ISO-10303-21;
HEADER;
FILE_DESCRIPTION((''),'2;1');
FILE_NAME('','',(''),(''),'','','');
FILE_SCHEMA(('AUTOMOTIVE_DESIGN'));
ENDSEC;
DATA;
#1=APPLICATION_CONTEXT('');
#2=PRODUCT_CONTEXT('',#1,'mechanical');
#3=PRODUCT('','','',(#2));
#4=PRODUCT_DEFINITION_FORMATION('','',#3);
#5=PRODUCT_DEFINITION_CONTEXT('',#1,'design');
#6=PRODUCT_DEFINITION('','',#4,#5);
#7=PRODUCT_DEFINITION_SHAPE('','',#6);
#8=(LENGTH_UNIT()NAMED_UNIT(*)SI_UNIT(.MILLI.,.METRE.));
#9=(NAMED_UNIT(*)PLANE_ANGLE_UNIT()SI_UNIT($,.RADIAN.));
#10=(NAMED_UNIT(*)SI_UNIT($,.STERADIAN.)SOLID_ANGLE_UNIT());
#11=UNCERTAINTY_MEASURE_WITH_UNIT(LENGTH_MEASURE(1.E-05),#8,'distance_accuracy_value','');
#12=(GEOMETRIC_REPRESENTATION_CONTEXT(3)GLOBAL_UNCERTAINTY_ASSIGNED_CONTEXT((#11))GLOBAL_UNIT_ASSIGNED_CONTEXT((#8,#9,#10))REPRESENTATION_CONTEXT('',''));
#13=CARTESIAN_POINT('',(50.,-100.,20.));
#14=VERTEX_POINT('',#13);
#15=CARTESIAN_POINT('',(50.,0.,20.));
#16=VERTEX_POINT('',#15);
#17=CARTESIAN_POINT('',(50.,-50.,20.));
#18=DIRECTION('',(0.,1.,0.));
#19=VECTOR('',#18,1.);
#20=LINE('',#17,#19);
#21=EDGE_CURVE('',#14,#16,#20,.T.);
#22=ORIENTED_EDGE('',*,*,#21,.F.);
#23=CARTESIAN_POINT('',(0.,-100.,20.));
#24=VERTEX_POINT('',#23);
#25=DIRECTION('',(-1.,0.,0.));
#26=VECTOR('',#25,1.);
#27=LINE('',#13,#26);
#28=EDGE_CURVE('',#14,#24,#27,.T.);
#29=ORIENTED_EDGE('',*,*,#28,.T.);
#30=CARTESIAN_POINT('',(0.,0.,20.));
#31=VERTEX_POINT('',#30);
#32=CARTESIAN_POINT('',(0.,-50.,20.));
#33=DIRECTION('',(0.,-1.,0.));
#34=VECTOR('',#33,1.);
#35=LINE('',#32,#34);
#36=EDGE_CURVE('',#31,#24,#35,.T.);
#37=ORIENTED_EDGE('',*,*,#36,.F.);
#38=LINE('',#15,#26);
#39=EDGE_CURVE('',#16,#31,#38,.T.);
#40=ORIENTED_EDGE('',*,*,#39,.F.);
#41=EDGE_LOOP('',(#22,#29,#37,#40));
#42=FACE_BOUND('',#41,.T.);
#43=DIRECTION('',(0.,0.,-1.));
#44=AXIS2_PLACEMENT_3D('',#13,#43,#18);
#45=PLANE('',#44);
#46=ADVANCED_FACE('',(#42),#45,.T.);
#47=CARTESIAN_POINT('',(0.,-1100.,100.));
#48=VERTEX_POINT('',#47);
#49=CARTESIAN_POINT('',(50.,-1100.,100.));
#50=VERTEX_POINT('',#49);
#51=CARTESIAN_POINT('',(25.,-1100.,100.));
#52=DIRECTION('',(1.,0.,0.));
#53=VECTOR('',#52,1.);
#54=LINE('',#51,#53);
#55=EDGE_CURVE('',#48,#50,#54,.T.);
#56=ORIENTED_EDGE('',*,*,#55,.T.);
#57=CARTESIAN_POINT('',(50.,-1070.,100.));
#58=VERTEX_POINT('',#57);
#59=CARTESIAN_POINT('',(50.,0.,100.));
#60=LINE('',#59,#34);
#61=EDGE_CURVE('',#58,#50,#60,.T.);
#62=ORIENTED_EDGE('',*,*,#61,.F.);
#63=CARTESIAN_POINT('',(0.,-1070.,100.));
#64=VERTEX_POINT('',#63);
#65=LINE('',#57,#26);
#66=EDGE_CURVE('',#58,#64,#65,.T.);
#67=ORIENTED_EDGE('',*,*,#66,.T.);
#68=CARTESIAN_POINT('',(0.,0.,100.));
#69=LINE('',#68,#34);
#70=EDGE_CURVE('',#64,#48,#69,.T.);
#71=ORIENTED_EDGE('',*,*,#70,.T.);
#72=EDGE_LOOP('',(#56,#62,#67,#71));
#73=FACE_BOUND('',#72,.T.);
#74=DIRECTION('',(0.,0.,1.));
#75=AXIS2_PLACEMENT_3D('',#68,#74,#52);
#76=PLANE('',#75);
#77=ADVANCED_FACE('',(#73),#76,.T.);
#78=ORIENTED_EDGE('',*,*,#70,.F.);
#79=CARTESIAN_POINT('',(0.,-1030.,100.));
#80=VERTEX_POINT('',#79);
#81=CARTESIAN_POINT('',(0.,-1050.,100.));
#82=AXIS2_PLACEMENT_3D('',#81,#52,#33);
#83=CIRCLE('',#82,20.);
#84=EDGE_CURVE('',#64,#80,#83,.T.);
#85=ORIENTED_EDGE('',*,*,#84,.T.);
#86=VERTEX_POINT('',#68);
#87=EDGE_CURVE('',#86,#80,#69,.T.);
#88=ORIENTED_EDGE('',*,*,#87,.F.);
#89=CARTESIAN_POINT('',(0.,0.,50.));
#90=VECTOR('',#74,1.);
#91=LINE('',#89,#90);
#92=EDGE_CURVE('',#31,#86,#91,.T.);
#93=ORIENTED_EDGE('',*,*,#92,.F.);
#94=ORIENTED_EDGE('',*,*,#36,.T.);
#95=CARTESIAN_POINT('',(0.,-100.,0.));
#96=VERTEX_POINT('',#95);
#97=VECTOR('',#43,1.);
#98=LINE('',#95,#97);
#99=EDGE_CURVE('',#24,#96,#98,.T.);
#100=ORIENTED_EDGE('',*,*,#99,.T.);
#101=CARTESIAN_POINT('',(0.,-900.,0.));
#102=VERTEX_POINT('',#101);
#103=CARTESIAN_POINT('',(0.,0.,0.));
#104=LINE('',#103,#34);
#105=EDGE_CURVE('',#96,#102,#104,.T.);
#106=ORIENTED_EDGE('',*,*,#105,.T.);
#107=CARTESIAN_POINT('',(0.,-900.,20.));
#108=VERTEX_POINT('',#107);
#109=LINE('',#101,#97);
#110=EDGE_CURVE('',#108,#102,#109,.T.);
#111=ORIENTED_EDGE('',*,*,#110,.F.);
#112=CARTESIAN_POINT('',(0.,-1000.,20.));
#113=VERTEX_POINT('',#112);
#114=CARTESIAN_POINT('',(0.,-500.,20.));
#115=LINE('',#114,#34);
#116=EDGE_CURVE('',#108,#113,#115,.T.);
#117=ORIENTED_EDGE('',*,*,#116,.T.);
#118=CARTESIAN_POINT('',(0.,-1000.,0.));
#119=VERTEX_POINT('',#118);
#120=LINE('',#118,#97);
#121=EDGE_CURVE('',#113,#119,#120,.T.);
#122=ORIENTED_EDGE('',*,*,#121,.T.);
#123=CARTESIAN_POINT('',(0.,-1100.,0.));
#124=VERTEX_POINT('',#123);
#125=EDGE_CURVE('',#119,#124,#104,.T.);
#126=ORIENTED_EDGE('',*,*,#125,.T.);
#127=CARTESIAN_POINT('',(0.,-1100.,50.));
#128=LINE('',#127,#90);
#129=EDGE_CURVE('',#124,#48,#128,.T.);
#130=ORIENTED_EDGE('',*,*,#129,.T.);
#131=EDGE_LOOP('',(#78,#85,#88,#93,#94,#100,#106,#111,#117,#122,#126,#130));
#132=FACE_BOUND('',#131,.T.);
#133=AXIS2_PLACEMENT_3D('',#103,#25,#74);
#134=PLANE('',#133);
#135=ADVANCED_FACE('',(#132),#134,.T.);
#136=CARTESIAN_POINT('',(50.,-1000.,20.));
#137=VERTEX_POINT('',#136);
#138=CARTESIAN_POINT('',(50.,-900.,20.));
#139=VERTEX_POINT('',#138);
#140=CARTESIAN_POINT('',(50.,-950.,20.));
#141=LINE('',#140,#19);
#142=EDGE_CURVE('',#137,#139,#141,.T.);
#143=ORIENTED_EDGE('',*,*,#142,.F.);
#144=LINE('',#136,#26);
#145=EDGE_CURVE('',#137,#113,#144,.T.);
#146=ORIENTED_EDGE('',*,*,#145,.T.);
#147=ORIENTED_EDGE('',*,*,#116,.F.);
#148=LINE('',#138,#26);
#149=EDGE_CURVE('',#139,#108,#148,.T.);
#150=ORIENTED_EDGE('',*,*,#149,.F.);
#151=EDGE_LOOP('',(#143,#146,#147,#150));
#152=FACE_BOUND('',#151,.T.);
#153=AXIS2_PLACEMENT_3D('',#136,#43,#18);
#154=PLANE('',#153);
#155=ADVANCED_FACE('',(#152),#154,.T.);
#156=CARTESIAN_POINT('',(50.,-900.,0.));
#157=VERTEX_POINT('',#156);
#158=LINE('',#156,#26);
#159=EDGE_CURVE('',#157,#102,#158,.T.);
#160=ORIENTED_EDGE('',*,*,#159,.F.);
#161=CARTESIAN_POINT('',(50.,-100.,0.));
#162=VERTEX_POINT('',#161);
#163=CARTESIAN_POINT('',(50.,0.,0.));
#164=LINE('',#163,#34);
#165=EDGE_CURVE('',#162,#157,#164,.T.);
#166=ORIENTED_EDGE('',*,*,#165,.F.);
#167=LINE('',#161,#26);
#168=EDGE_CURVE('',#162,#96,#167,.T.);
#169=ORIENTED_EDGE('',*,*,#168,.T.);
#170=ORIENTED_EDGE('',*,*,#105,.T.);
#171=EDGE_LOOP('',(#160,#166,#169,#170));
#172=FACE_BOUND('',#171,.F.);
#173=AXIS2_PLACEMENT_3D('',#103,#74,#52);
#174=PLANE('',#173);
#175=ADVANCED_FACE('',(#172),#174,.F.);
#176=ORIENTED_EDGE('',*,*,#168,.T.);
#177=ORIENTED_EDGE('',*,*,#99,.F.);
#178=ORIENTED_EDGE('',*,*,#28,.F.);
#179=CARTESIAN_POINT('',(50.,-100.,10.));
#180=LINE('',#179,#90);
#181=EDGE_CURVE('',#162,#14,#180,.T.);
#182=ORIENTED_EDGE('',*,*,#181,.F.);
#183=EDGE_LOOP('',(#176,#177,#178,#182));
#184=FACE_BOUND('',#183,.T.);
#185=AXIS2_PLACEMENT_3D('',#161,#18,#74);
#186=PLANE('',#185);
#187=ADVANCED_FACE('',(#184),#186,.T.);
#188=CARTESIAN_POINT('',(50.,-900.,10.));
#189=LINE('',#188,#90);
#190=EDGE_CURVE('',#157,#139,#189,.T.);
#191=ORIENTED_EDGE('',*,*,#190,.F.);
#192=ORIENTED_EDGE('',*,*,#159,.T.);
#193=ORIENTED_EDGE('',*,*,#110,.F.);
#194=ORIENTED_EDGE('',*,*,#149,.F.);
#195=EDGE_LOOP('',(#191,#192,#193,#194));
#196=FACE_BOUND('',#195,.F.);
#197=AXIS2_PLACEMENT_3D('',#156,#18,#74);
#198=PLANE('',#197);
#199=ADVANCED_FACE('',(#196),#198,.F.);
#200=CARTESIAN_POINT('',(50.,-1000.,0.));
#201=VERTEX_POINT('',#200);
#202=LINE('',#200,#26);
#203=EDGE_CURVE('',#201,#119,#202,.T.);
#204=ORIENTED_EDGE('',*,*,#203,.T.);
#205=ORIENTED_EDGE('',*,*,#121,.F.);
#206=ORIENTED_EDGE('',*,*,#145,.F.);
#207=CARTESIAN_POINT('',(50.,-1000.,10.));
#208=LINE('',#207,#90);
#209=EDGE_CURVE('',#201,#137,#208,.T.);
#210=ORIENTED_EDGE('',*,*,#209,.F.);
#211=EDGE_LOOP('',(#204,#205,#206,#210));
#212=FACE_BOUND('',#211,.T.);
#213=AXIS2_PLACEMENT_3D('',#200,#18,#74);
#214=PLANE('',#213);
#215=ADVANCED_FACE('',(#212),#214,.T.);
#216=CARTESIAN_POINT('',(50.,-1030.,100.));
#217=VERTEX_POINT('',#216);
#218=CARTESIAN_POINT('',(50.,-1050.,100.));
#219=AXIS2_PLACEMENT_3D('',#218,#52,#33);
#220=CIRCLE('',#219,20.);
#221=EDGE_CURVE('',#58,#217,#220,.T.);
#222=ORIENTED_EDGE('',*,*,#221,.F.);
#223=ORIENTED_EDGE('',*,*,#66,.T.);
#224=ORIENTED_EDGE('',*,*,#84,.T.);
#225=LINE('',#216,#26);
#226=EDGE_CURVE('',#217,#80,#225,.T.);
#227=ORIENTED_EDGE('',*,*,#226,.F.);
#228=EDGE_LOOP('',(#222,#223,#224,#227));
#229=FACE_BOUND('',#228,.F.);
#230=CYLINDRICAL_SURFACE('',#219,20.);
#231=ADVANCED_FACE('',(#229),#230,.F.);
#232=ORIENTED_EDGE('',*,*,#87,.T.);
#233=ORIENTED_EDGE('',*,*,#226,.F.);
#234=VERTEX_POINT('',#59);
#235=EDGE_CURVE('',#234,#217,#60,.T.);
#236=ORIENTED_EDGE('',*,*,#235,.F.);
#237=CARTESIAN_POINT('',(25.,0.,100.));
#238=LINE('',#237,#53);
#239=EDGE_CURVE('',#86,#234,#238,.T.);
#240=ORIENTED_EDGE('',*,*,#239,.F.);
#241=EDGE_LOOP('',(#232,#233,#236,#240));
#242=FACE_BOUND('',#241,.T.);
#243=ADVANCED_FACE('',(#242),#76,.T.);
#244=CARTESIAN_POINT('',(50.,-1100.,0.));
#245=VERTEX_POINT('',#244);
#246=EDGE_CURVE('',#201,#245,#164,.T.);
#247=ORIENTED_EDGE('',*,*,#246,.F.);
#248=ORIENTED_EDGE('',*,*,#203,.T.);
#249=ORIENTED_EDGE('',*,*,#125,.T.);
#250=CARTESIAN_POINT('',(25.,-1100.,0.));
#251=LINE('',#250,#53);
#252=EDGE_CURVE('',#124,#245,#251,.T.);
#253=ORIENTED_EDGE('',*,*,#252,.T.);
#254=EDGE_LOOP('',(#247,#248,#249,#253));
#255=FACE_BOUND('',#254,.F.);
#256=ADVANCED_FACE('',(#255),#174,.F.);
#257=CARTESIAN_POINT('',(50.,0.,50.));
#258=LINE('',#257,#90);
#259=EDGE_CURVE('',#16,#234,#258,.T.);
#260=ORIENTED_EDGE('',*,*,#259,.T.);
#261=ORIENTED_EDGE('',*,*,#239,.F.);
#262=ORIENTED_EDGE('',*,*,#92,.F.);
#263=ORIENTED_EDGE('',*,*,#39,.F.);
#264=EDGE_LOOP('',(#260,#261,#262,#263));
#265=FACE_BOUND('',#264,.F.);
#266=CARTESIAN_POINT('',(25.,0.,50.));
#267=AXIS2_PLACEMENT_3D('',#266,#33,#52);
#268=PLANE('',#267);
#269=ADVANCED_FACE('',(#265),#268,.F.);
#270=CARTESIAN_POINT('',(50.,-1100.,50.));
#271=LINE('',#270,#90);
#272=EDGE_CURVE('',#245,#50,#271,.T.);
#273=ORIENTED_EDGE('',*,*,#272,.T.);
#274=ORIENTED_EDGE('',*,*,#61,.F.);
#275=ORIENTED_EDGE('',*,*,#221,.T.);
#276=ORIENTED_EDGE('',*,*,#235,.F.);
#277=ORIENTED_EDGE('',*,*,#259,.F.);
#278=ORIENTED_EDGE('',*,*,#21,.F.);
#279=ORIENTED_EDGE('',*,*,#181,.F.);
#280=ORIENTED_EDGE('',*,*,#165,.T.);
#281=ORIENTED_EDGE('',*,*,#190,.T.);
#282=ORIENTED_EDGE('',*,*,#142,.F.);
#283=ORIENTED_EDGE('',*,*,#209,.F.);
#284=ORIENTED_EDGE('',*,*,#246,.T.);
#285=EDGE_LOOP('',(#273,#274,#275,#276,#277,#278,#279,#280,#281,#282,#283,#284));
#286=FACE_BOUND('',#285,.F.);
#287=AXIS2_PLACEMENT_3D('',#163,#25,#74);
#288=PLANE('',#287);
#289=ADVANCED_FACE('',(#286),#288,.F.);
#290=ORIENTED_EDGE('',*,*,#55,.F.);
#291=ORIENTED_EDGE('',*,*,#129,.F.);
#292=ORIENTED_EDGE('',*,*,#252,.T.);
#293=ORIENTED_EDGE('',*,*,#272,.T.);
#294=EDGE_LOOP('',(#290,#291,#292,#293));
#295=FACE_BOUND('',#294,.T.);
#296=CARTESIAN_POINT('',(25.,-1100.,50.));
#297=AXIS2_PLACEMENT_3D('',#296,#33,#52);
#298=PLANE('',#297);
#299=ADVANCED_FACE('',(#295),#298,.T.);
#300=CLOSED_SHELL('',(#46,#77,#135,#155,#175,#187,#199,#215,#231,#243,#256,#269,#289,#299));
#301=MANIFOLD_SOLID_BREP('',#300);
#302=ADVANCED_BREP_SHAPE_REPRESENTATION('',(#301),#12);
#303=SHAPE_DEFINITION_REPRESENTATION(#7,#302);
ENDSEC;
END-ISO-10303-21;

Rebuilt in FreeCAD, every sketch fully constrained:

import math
import FreeCAD as App
import Part
import Sketcher
from FreeCAD import Vector
Q = App.Units.Quantity


def add_polygon(sketch, points):
    """Adds a closed chain of lines whose ends are joined by coincident constraints."""
    first, n = sketch.GeometryCount, len(points)
    for a, b in zip(points, points[1:] + points[:1]):
        sketch.addGeometry(Part.LineSegment(App.Vector(*a, 0), App.Vector(*b, 0)), False)
    for i in range(n):
        sketch.addConstraint(Sketcher.Constraint("Coincident", first + i, 2, first + (i + 1) % n, 1))

doc = App.newDocument("Part")
params = doc.addObject("Spreadsheet::Sheet", "Params")
for row, (alias, value) in enumerate([
    ("sketch1_width", "50 mm"),
    ("sketch1_height", "100 mm"),
    ("pad1_length", "1100 mm"),
    ("sketch2_width", "100 mm"),
    ("sketch2_height", "20 mm"),
    ("sketch3_radius", "20 mm"),
], start=1):
    params.set(f"A{row}", alias)
    params.set(f"B{row}", "=" + value)
    params.setAlias(f"B{row}", alias)

body = doc.addObject("PartDesign::Body", "Body")

# Sketch on XZ plane
sketch1 = doc.addObject("Sketcher::SketchObject", "Sketch")
body.addObject(sketch1)
sketch1.AttachmentSupport = (doc.XZ_Plane, [""])
sketch1.MapMode = "FlatFace"
add_polygon(sketch1, [(0, 100), (0, 0), (50, 0), (50, 100)])  # lines 0-3
sketch1.addConstraint(Sketcher.Constraint("Vertical", 0))
sketch1.addConstraint(Sketcher.Constraint("Horizontal", 1))
sketch1.addConstraint(Sketcher.Constraint("Vertical", 2))
sketch1.addConstraint(Sketcher.Constraint("Horizontal", 3))
sketch1.addConstraint(Sketcher.Constraint("Coincident", 0, 2, -1, 1))
sketch1.addConstraint(Sketcher.Constraint("DistanceX", 1, 1, 1, 2, Q("50 mm")))
sketch1.addConstraint(Sketcher.Constraint("DistanceY", 0, 2, 0, 1, Q("100 mm")))
sketch1.setExpression("Constraints[9]", "Params.sketch1_width")
sketch1.setExpression("Constraints[10]", "Params.sketch1_height")
pad1 = doc.addObject("PartDesign::Pad", "Pad")
body.addObject(pad1)
pad1.Profile = sketch1
pad1.setExpression("Length", "Params.pad1_length")

# Sketch on YZ plane
sketch2 = doc.addObject("Sketcher::SketchObject", "Sketch001")
body.addObject(sketch2)
sketch2.AttachmentSupport = (doc.YZ_Plane, [""])
sketch2.MapMode = "FlatFace"
sketch2.AttachmentOffset = App.Placement(Vector(0, 0, 50), App.Rotation())
add_polygon(sketch2, [(-100, 20), (-100, 0), (0, 0), (0, 20)])  # lines 0-3
add_polygon(sketch2, [(-1000, 20), (-1000, 0), (-900, 0), (-900, 20)])  # lines 4-7
sketch2.addConstraint(Sketcher.Constraint("Vertical", 0))
sketch2.addConstraint(Sketcher.Constraint("Horizontal", 1))
sketch2.addConstraint(Sketcher.Constraint("Vertical", 2))
sketch2.addConstraint(Sketcher.Constraint("Horizontal", 3))
sketch2.addConstraint(Sketcher.Constraint("Vertical", 4))
sketch2.addConstraint(Sketcher.Constraint("Horizontal", 5))
sketch2.addConstraint(Sketcher.Constraint("Vertical", 6))
sketch2.addConstraint(Sketcher.Constraint("Horizontal", 7))
sketch2.addConstraint(Sketcher.Constraint("Coincident", 1, 2, -1, 1))
sketch2.addConstraint(Sketcher.Constraint("PointOnObject", 4, 2, -1))
sketch2.addConstraint(Sketcher.Constraint("Horizontal", 3, 2, 6, 2))
sketch2.addConstraint(Sketcher.Constraint("Equal", 3, 5))
sketch2.addConstraint(Sketcher.Constraint("DistanceX", 1, 1, 1, 2, Q("100 mm")))
sketch2.addConstraint(Sketcher.Constraint("DistanceY", 0, 2, 0, 1, Q("20 mm")))
sketch2.addConstraint(Sketcher.Constraint("DistanceX", 4, 2, -1, 1, Q("1000 mm")))
sketch2.setExpression("Constraints[20]", "Params.sketch2_width")
sketch2.setExpression("Constraints[21]", "Params.sketch2_height")
pocket1 = doc.addObject("PartDesign::Pocket", "Pocket")
body.addObject(pocket1)
pocket1.Profile = sketch2
pocket1.Type = "ThroughAll"

# Sketch on YZ plane
sketch3 = doc.addObject("Sketcher::SketchObject", "Sketch002")
body.addObject(sketch3)
sketch3.AttachmentSupport = (doc.YZ_Plane, [""])
sketch3.MapMode = "FlatFace"
sketch3.AttachmentOffset = App.Placement(Vector(0, 0, 50), App.Rotation())
sketch3.addGeometry(Part.LineSegment(Vector(-1030, 100, 0), Vector(-1070, 100, 0)), False)
sketch3.addGeometry(Part.ArcOfCircle(Part.Circle(Vector(-1050, 100, 0), Vector(0, 0, 1), 20), math.radians(180), math.radians(360)), False)
sketch3.addConstraint(Sketcher.Constraint("Coincident", 0, 1, 1, 2))
sketch3.addConstraint(Sketcher.Constraint("Coincident", 1, 1, 0, 2))
sketch3.addConstraint(Sketcher.Constraint("Horizontal", 0))
sketch3.addConstraint(Sketcher.Constraint("Horizontal", 1, 3, 0, 1))
sketch3.addConstraint(Sketcher.Constraint("Radius", 1, Q("20 mm")))
sketch3.addConstraint(Sketcher.Constraint("DistanceX", 1, 3, -1, 1, Q("1050 mm")))
sketch3.addConstraint(Sketcher.Constraint("DistanceY", -1, 1, 1, 3, Q("100 mm")))
sketch3.setExpression("Constraints[4]", "Params.sketch3_radius")
pocket2 = doc.addObject("PartDesign::Pocket", "Pocket001")
body.addObject(pocket2)
pocket2.Profile = sketch3
pocket2.Type = "ThroughAll"

doc.recompute()
